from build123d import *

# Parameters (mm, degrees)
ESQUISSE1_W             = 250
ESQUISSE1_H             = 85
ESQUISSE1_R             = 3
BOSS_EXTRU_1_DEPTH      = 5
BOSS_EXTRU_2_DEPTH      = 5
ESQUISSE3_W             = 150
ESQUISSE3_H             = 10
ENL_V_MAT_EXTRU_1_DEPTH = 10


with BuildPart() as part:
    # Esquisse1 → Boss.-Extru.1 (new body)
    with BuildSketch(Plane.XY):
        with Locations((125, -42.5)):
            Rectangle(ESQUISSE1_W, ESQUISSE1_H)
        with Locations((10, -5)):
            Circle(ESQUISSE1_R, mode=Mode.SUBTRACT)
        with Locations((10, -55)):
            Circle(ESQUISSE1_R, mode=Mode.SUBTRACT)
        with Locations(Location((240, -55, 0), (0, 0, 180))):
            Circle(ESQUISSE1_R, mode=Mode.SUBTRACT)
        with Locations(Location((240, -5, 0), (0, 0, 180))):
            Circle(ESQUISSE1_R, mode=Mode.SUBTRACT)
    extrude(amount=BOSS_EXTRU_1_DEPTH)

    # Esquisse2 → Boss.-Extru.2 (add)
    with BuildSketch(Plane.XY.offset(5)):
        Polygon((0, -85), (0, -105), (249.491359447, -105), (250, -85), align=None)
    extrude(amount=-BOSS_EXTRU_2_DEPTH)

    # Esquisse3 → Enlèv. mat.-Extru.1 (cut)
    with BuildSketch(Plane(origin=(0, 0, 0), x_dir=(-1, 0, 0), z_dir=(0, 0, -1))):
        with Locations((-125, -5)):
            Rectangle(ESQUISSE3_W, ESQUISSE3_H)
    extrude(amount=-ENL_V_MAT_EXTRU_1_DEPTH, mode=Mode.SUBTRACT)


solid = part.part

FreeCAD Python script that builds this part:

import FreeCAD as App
import Part
import Sketcher

V = App.Vector

doc = App.newDocument("Part")
body = doc.addObject("PartDesign::Body", "Body")

sketch1 = doc.addObject("Sketcher::SketchObject", "Sketch")
body.addObject(sketch1)
sketch1.AttachmentSupport = (doc.XY_Plane, [""])
sketch1.MapMode = "FlatFace"
sketch1.addGeometry(Part.LineSegment(V(0, 0, 0), V(0, -85, 0)), False)
sketch1.addGeometry(Part.LineSegment(V(0, -85, 0), V(250, -85, 0)), False)
sketch1.addGeometry(Part.LineSegment(V(250, -85, 0), V(250, 0, 0)), False)
sketch1.addGeometry(Part.LineSegment(V(250, 0, 0), V(0, 0, 0)), False)
sketch1.addGeometry(Part.Circle(V(10, -55, 0), V(0, 0, 1), 3), False)
sketch1.addGeometry(Part.Circle(V(240, -55, 0), V(0, 0, 1), 3), False)
sketch1.addGeometry(Part.Circle(V(10, -5, 0), V(0, 0, 1), 3), False)
sketch1.addGeometry(Part.Circle(V(240, -5, 0), V(0, 0, 1), 3), False)
sketch1.addConstraint(Sketcher.Constraint("Coincident", 0, 2, 1, 1))
sketch1.addConstraint(Sketcher.Constraint("Coincident", 1, 2, 2, 1))
sketch1.addConstraint(Sketcher.Constraint("Coincident", 2, 2, 3, 1))
sketch1.addConstraint(Sketcher.Constraint("Coincident", 3, 2, 0, 1))
sketch1.addConstraint(Sketcher.Constraint("Vertical", 0))
sketch1.addConstraint(Sketcher.Constraint("Horizontal", 1))
sketch1.addConstraint(Sketcher.Constraint("Vertical", 2))
sketch1.addConstraint(Sketcher.Constraint("Horizontal", 3))
sketch1.addConstraint(Sketcher.Constraint("Coincident", 3, 2, -1, 1))
sketch1.addConstraint(Sketcher.Constraint("Equal", 4, 5))
sketch1.addConstraint(Sketcher.Constraint("Equal", 5, 6))
sketch1.addConstraint(Sketcher.Constraint("Equal", 6, 7))
sketch1.addConstraint(Sketcher.Constraint("Horizontal", 4, 3, 5, 3))
sketch1.addConstraint(Sketcher.Constraint("Horizontal", 6, 3, 7, 3))
sketch1.addConstraint(Sketcher.Constraint("Vertical", 4, 3, 6, 3))
sketch1.addConstraint(Sketcher.Constraint("Vertical", 5, 3, 7, 3))
sketch1.addConstraint(Sketcher.Constraint("Diameter", 4, 6.0))
sketch1.addConstraint(Sketcher.Constraint("DistanceX", 1, 1, 1, 2, 250.0))
sketch1.addConstraint(Sketcher.Constraint("DistanceY", 0, 2, 0, 1, 85.0))
sketch1.addConstraint(Sketcher.Constraint("DistanceX", -1, 1, 4, 3, 10.0))
sketch1.addConstraint(Sketcher.Constraint("DistanceY", 4, 3, -1, 1, 55.0))
sketch1.addConstraint(Sketcher.Constraint("DistanceX", -1, 1, 5, 3, 240.0))
sketch1.addConstraint(Sketcher.Constraint("DistanceY", 6, 3, -1, 1, 5.0))
pad1 = doc.addObject("PartDesign::Pad", "Pad")
body.addObject(pad1)
pad1.Profile = sketch1
pad1.Length = 5

sketch2 = doc.addObject("Sketcher::SketchObject", "Sketch001")
body.addObject(sketch2)
sketch2.AttachmentSupport = (doc.XY_Plane, [""])
sketch2.MapMode = "FlatFace"
sketch2.AttachmentOffset = App.Placement(V(0, 0, 5), App.Rotation())
sketch2.addGeometry(Part.LineSegment(V(0, -85, 0), V(0, -105, 0)), False)
sketch2.addGeometry(Part.LineSegment(V(0, -105, 0), V(249.491359, -105, 0)), False)
sketch2.addGeometry(Part.LineSegment(V(249.491359, -105, 0), V(250, -85, 0)), False)
sketch2.addGeometry(Part.LineSegment(V(250, -85, 0), V(0, -85, 0)), False)
sketch2.addConstraint(Sketcher.Constraint("Coincident", 0, 2, 1, 1))
sketch2.addConstraint(Sketcher.Constraint("Coincident", 1, 2, 2, 1))
sketch2.addConstraint(Sketcher.Constraint("Coincident", 2, 2, 3, 1))
sketch2.addConstraint(Sketcher.Constraint("Coincident", 3, 2, 0, 1))
sketch2.addConstraint(Sketcher.Constraint("Vertical", 0))
sketch2.addConstraint(Sketcher.Constraint("Horizontal", 1))
sketch2.addConstraint(Sketcher.Constraint("Horizontal", 3))
sketch2.addConstraint(Sketcher.Constraint("PointOnObject", 0, 2, -2))
sketch2.addConstraint(Sketcher.Constraint("DistanceX", 3, 2, 3, 1, 250.0))
sketch2.addConstraint(Sketcher.Constraint("DistanceY", 0, 2, 0, 1, 20.0))
sketch2.addConstraint(Sketcher.Constraint("DistanceY", 0, 2, -1, 1, 105.0))
sketch2.addConstraint(Sketcher.Constraint("DistanceX", 1, 1, 1, 2, 249.491359))
pad2 = doc.addObject("PartDesign::Pad", "Pad001")
body.addObject(pad2)
pad2.Profile = sketch2
pad2.Length = 5
pad2.Reversed = True

sketch3 = doc.addObject("Sketcher::SketchObject", "Sketch002")
body.addObject(sketch3)
sketch3.AttachmentSupport = (doc.XY_Plane, [""])
sketch3.MapMode = "FlatFace"
sketch3.addGeometry(Part.LineSegment(V(200, 0, 0), V(200, -10, 0)), False)
sketch3.addGeometry(Part.LineSegment(V(200, -10, 0), V(50, -10, 0)), False)
sketch3.addGeometry(Part.LineSegment(V(50, -10, 0), V(50, 0, 0)), False)
sketch3.addGeometry(Part.LineSegment(V(50, 0, 0), V(200, 0, 0)), False)
sketch3.addConstraint(Sketcher.Constraint("Coincident", 0, 2, 1, 1))
sketch3.addConstraint(Sketcher.Constraint("Coincident", 1, 2, 2, 1))
sketch3.addConstraint(Sketcher.Constraint("Coincident", 2, 2, 3, 1))
sketch3.addConstraint(Sketcher.Constraint("Coincident", 3, 2, 0, 1))
sketch3.addConstraint(Sketcher.Constraint("Vertical", 0))
sketch3.addConstraint(Sketcher.Constraint("Horizontal", 1))
sketch3.addConstraint(Sketcher.Constraint("Vertical", 2))
sketch3.addConstraint(Sketcher.Constraint("Horizontal", 3))
sketch3.addConstraint(Sketcher.Constraint("PointOnObject", 2, 2, -1))
sketch3.addConstraint(Sketcher.Constraint("DistanceX", 1, 2, 1, 1, 150.0))
sketch3.addConstraint(Sketcher.Constraint("DistanceY", 0, 2, 0, 1, 10.0))
sketch3.addConstraint(Sketcher.Constraint("DistanceX", -1, 1, 0, 2, 200.0))
pocket1 = doc.addObject("PartDesign::Pocket", "Pocket")
body.addObject(pocket1)
pocket1.Profile = sketch3
pocket1.Length = 10
pocket1.Reversed = True

doc.recompute()
